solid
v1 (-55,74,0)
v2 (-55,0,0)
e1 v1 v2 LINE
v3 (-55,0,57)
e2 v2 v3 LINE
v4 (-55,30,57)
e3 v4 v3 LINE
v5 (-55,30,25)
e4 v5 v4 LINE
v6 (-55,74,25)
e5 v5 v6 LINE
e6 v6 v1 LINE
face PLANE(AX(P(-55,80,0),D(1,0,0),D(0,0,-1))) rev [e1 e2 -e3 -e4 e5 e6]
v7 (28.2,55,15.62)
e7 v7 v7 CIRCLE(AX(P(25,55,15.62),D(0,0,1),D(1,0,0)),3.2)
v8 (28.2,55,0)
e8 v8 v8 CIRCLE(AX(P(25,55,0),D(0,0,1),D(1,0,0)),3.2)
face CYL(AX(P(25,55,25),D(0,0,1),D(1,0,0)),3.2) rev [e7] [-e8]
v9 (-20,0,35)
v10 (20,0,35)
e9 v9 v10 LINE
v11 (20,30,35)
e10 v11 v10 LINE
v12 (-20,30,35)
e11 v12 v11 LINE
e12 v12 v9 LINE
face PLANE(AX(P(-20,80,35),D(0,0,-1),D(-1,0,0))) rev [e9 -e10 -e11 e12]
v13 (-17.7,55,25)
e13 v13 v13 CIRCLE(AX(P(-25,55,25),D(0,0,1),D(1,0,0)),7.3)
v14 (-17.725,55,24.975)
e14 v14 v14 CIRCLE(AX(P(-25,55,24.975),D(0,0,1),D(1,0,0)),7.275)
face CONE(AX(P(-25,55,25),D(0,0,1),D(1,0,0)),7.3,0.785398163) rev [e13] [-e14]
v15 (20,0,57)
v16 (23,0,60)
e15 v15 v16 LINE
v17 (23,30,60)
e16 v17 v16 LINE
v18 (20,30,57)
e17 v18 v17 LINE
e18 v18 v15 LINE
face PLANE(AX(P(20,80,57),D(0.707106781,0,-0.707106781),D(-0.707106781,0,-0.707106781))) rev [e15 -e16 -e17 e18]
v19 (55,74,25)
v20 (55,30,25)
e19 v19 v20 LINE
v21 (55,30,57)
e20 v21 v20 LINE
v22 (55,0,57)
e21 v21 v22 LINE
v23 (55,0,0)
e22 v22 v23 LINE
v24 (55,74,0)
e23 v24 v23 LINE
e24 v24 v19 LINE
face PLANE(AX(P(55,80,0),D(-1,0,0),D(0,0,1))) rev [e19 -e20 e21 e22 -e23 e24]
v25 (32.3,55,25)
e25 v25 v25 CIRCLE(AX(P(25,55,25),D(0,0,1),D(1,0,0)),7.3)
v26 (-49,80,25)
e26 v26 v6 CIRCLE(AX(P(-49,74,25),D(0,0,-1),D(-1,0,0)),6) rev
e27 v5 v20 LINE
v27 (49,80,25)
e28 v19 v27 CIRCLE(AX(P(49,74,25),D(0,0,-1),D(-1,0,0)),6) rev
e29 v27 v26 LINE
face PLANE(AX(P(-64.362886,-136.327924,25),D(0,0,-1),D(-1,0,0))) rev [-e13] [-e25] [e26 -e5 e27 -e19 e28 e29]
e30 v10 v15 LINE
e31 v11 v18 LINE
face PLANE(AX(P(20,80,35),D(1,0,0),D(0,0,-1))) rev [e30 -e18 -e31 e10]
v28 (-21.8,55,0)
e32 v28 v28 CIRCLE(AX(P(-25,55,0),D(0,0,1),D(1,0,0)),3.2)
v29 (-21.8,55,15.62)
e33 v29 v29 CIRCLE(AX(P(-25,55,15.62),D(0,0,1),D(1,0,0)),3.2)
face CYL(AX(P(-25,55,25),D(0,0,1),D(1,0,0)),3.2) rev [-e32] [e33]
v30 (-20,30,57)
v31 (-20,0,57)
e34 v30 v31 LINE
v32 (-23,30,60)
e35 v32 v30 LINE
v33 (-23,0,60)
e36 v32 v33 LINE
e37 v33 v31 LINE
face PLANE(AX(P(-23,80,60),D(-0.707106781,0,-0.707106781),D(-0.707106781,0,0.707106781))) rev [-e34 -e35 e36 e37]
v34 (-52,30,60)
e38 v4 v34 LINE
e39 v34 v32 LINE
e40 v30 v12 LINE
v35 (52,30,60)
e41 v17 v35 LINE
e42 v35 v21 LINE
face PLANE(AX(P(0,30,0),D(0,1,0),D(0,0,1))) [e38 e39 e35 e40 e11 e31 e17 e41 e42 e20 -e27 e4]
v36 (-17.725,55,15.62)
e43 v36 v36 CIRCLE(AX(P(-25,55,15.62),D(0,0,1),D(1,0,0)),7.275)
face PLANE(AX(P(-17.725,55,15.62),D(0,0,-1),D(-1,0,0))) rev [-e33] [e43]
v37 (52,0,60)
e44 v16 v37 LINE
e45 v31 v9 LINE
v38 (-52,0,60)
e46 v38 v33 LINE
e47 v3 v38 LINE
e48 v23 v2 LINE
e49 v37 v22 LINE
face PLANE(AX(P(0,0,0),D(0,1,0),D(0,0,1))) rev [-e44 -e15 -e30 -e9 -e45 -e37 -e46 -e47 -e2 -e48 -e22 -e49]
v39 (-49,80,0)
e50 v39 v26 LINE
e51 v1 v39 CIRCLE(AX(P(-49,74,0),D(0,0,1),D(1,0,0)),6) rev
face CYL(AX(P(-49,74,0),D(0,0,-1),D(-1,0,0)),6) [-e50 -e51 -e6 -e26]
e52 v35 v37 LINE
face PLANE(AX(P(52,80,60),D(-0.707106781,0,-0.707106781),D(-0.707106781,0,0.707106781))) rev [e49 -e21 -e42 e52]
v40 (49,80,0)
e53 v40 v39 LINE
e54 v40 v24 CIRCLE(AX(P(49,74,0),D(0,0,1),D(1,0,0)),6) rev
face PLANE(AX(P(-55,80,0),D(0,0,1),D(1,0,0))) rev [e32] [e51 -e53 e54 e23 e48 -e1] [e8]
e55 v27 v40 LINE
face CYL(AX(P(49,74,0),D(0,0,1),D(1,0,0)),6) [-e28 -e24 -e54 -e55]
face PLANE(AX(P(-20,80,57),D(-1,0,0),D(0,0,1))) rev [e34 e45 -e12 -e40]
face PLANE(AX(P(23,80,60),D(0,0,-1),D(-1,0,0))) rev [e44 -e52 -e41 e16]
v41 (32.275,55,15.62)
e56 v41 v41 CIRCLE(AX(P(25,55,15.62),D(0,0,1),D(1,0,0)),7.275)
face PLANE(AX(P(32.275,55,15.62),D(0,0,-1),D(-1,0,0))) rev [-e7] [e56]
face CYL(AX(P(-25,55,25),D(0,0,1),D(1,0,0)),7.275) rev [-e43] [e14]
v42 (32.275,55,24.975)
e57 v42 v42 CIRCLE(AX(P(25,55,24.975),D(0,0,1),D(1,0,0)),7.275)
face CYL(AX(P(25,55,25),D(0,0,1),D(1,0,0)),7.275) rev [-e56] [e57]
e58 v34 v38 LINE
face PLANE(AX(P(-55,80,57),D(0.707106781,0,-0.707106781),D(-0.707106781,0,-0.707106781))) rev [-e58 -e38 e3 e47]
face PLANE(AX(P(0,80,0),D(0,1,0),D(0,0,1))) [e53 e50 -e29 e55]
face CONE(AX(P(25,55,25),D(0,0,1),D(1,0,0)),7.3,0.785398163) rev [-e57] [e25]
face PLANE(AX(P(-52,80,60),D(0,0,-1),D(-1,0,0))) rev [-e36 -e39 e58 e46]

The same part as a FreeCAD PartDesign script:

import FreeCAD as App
import Part
import Sketcher
Q = App.Units.Quantity


def edges_at(feature, points):
    """Names of the edges that pass closest to the given points."""
    edges = feature.Shape.Edges
    near = lambda p: min(range(len(edges)), key=lambda i: edges[i].distToShape(Part.Vertex(*p))[0])
    return sorted({f"Edge{near(p) + 1}" for p in points})


def add_polygon(sketch, points):
    """Adds a closed chain of lines whose ends are joined by coincident constraints."""
    first, n = sketch.GeometryCount, len(points)
    for a, b in zip(points, points[1:] + points[:1]):
        sketch.addGeometry(Part.LineSegment(App.Vector(*a, 0), App.Vector(*b, 0)), False)
    for i in range(n):
        sketch.addConstraint(Sketcher.Constraint("Coincident", first + i, 2, first + (i + 1) % n, 1))

doc = App.newDocument("Part")
body = doc.addObject("PartDesign::Body", "Body")

# Sketch on XZ plane
sketch1 = body.newObject("Sketcher::SketchObject", "Sketch")
sketch1.AttachmentSupport = (doc.getObject("XZ_Plane"), [""])
sketch1.MapMode = "FlatFace"
add_polygon(sketch1, [(-20, 57), (-20, 35), (20, 35), (20, 57), (23, 60), (52, 60), (55, 57), (55, 0), (-55, 0), (-55, 57), (-52, 60), (-23, 60)])  # lines 0-11
sketch1.addConstraint(Sketcher.Constraint("Vertical", 0))
sketch1.addConstraint(Sketcher.Constraint("Horizontal", 1))
sketch1.addConstraint(Sketcher.Constraint("Vertical", 2))
sketch1.addConstraint(Sketcher.Constraint("Horizontal", 4))
sketch1.addConstraint(Sketcher.Constraint("Vertical", 6))
sketch1.addConstraint(Sketcher.Constraint("Horizontal", 7))
sketch1.addConstraint(Sketcher.Constraint("Vertical", 8))
sketch1.addConstraint(Sketcher.Constraint("Horizontal", 10))
sketch1.addConstraint(Sketcher.Constraint("Symmetric", 6, 2, 7, 2, -1, 1))
sketch1.addConstraint(Sketcher.Constraint("Symmetric", 4, 2, 9, 2, -2))
sketch1.addConstraint(Sketcher.Constraint("Symmetric", 2, 2, 11, 2, -2))
sketch1.addConstraint(Sketcher.Constraint("Perpendicular", 3, 5))
sketch1.addConstraint(Sketcher.Constraint("Perpendicular", 5, 9))
sketch1.addConstraint(Sketcher.Constraint("Perpendicular", 9, 11))
sketch1.addConstraint(Sketcher.Constraint("Horizontal", 2, 2, 5, 2))
sketch1.addConstraint(Sketcher.Constraint("Horizontal", 5, 2, 8, 2))
sketch1.addConstraint(Sketcher.Constraint("DistanceX", 1, 1, 1, 2, Q("40 mm")))
sketch1.addConstraint(Sketcher.Constraint("DistanceX", 4, 1, 4, 2, Q("29 mm")))
sketch1.addConstraint(Sketcher.Constraint("DistanceX", 7, 2, 7, 1, Q("110 mm")))
sketch1.addConstraint(Sketcher.Constraint("DistanceY", 0, 2, 0, 1, Q("22 mm")))
sketch1.addConstraint(Sketcher.Constraint("DistanceY", 6, 2, 6, 1, Q("57 mm")))
pad1 = body.newObject("PartDesign::Pad", "Pad")
pad1.Profile = sketch1
pad1.Length = 80
pad1.Reversed = True

# Sketch on XZ plane
sketch2 = body.newObject("Sketcher::SketchObject", "Sketch001")
sketch2.AttachmentSupport = (doc.getObject("XZ_Plane"), [""])
sketch2.MapMode = "FlatFace"
sketch2.AttachmentOffset = App.Placement(App.Vector(0, 0, -80), App.Rotation())
add_polygon(sketch2, [(-64, 25), (-64, 72), (64, 72), (64, 25)])  # lines 0-3
sketch2.addConstraint(Sketcher.Constraint("Vertical", 0))
sketch2.addConstraint(Sketcher.Constraint("Horizontal", 1))
sketch2.addConstraint(Sketcher.Constraint("Vertical", 2))
sketch2.addConstraint(Sketcher.Constraint("Horizontal", 3))
sketch2.addConstraint(Sketcher.Constraint("DistanceY", -1, 1, 2, 2, Q("25 mm")))
sketch2.addConstraint(Sketcher.Constraint("DistanceX", 1, 1, 1, 2, Q("127.893942 mm")))
sketch2.addConstraint(Sketcher.Constraint("DistanceY", 0, 1, 0, 2, Q("47.206382 mm")))
sketch2.addConstraint(Sketcher.Constraint("DistanceX", 0, 2, -1, 1, Q("64.362886 mm")))
pocket1 = body.newObject("PartDesign::Pocket", "Pocket")
pocket1.Profile = sketch2
pocket1.Length = 50
pocket1.Reversed = True
doc.recompute()

fillet = body.newObject("PartDesign::Fillet", "Fillet")
fillet.Base = (pocket1, edges_at(pocket1, [(55, 80, 12.5), (-55, 80, 12.5)]))
fillet.Radius = 6

# Sketch on YZ plane
sketch3 = body.newObject("Sketcher::SketchObject", "Sketch002")
sketch3.AttachmentSupport = (doc.getObject("YZ_Plane"), [""])
sketch3.MapMode = "FlatFace"
sketch3.AttachmentOffset = App.Placement(App.Vector(0, 0, -25), App.Rotation())
add_polygon(sketch3, [(55, 0), (55, 25), (47.7, 25), (47.725, 24.975), (47.725, 15.62), (51.8, 15.62), (51.8, 0)])  # lines 0-6
sketch3.addGeometry(Part.LineSegment(App.Vector(55, 25, 0), App.Vector(55, 0, 0)), True)  # axis
sketch3.addConstraint(Sketcher.Constraint("Vertical", 0))
sketch3.addConstraint(Sketcher.Constraint("Horizontal", 1))
sketch3.addConstraint(Sketcher.Constraint("Vertical", 3))
sketch3.addConstraint(Sketcher.Constraint("Horizontal", 4))
sketch3.addConstraint(Sketcher.Constraint("Vertical", 5))
sketch3.addConstraint(Sketcher.Constraint("Horizontal", 6))
sketch3.addConstraint(Sketcher.Constraint("Vertical", 7))
sketch3.addConstraint(Sketcher.Constraint("Coincident", 7, 1, 0, 2))
sketch3.addConstraint(Sketcher.Constraint("PointOnObject", 5, 2, -1))
sketch3.addConstraint(Sketcher.Constraint("PointOnObject", 7, 2, -1))
sketch3.addConstraint(Sketcher.Constraint("DistanceY", 0, 1, 0, 2, Q("25 mm")))
sketch3.addConstraint(Sketcher.Constraint("Angle", 2, Q("-45 deg")))
sketch3.addConstraint(Sketcher.Constraint("DistanceX", 1, 2, 1, 1, Q("7.3 mm")))
sketch3.addConstraint(Sketcher.Constraint("DistanceX", 6, 1, 6, 2, Q("3.2 mm")))
sketch3.addConstraint(Sketcher.Constraint("DistanceX", -1, 1, 0, 2, Q("55 mm")))
sketch3.addConstraint(Sketcher.Constraint("DistanceY", 5, 2, 5, 1, Q("15.62 mm")))
sketch3.addConstraint(Sketcher.Constraint("DistanceX", 4, 1, 4, 2, Q("4.075 mm")))
groove = body.newObject("PartDesign::Groove", "Groove")
groove.Profile = sketch3
groove.ReferenceAxis = (sketch3, ["Axis0"])
groove.Angle = 360
doc.recompute()

linearpattern = body.newObject("PartDesign::LinearPattern", "LinearPattern")
linearpattern.Originals = [groove]
linearpattern.Direction = (doc.getObject("X_Axis"), [""])
linearpattern.Mode = "offset"
linearpattern.Offset = 50
linearpattern.Occurrences = 2
body.Tip = linearpattern

doc.recompute()
